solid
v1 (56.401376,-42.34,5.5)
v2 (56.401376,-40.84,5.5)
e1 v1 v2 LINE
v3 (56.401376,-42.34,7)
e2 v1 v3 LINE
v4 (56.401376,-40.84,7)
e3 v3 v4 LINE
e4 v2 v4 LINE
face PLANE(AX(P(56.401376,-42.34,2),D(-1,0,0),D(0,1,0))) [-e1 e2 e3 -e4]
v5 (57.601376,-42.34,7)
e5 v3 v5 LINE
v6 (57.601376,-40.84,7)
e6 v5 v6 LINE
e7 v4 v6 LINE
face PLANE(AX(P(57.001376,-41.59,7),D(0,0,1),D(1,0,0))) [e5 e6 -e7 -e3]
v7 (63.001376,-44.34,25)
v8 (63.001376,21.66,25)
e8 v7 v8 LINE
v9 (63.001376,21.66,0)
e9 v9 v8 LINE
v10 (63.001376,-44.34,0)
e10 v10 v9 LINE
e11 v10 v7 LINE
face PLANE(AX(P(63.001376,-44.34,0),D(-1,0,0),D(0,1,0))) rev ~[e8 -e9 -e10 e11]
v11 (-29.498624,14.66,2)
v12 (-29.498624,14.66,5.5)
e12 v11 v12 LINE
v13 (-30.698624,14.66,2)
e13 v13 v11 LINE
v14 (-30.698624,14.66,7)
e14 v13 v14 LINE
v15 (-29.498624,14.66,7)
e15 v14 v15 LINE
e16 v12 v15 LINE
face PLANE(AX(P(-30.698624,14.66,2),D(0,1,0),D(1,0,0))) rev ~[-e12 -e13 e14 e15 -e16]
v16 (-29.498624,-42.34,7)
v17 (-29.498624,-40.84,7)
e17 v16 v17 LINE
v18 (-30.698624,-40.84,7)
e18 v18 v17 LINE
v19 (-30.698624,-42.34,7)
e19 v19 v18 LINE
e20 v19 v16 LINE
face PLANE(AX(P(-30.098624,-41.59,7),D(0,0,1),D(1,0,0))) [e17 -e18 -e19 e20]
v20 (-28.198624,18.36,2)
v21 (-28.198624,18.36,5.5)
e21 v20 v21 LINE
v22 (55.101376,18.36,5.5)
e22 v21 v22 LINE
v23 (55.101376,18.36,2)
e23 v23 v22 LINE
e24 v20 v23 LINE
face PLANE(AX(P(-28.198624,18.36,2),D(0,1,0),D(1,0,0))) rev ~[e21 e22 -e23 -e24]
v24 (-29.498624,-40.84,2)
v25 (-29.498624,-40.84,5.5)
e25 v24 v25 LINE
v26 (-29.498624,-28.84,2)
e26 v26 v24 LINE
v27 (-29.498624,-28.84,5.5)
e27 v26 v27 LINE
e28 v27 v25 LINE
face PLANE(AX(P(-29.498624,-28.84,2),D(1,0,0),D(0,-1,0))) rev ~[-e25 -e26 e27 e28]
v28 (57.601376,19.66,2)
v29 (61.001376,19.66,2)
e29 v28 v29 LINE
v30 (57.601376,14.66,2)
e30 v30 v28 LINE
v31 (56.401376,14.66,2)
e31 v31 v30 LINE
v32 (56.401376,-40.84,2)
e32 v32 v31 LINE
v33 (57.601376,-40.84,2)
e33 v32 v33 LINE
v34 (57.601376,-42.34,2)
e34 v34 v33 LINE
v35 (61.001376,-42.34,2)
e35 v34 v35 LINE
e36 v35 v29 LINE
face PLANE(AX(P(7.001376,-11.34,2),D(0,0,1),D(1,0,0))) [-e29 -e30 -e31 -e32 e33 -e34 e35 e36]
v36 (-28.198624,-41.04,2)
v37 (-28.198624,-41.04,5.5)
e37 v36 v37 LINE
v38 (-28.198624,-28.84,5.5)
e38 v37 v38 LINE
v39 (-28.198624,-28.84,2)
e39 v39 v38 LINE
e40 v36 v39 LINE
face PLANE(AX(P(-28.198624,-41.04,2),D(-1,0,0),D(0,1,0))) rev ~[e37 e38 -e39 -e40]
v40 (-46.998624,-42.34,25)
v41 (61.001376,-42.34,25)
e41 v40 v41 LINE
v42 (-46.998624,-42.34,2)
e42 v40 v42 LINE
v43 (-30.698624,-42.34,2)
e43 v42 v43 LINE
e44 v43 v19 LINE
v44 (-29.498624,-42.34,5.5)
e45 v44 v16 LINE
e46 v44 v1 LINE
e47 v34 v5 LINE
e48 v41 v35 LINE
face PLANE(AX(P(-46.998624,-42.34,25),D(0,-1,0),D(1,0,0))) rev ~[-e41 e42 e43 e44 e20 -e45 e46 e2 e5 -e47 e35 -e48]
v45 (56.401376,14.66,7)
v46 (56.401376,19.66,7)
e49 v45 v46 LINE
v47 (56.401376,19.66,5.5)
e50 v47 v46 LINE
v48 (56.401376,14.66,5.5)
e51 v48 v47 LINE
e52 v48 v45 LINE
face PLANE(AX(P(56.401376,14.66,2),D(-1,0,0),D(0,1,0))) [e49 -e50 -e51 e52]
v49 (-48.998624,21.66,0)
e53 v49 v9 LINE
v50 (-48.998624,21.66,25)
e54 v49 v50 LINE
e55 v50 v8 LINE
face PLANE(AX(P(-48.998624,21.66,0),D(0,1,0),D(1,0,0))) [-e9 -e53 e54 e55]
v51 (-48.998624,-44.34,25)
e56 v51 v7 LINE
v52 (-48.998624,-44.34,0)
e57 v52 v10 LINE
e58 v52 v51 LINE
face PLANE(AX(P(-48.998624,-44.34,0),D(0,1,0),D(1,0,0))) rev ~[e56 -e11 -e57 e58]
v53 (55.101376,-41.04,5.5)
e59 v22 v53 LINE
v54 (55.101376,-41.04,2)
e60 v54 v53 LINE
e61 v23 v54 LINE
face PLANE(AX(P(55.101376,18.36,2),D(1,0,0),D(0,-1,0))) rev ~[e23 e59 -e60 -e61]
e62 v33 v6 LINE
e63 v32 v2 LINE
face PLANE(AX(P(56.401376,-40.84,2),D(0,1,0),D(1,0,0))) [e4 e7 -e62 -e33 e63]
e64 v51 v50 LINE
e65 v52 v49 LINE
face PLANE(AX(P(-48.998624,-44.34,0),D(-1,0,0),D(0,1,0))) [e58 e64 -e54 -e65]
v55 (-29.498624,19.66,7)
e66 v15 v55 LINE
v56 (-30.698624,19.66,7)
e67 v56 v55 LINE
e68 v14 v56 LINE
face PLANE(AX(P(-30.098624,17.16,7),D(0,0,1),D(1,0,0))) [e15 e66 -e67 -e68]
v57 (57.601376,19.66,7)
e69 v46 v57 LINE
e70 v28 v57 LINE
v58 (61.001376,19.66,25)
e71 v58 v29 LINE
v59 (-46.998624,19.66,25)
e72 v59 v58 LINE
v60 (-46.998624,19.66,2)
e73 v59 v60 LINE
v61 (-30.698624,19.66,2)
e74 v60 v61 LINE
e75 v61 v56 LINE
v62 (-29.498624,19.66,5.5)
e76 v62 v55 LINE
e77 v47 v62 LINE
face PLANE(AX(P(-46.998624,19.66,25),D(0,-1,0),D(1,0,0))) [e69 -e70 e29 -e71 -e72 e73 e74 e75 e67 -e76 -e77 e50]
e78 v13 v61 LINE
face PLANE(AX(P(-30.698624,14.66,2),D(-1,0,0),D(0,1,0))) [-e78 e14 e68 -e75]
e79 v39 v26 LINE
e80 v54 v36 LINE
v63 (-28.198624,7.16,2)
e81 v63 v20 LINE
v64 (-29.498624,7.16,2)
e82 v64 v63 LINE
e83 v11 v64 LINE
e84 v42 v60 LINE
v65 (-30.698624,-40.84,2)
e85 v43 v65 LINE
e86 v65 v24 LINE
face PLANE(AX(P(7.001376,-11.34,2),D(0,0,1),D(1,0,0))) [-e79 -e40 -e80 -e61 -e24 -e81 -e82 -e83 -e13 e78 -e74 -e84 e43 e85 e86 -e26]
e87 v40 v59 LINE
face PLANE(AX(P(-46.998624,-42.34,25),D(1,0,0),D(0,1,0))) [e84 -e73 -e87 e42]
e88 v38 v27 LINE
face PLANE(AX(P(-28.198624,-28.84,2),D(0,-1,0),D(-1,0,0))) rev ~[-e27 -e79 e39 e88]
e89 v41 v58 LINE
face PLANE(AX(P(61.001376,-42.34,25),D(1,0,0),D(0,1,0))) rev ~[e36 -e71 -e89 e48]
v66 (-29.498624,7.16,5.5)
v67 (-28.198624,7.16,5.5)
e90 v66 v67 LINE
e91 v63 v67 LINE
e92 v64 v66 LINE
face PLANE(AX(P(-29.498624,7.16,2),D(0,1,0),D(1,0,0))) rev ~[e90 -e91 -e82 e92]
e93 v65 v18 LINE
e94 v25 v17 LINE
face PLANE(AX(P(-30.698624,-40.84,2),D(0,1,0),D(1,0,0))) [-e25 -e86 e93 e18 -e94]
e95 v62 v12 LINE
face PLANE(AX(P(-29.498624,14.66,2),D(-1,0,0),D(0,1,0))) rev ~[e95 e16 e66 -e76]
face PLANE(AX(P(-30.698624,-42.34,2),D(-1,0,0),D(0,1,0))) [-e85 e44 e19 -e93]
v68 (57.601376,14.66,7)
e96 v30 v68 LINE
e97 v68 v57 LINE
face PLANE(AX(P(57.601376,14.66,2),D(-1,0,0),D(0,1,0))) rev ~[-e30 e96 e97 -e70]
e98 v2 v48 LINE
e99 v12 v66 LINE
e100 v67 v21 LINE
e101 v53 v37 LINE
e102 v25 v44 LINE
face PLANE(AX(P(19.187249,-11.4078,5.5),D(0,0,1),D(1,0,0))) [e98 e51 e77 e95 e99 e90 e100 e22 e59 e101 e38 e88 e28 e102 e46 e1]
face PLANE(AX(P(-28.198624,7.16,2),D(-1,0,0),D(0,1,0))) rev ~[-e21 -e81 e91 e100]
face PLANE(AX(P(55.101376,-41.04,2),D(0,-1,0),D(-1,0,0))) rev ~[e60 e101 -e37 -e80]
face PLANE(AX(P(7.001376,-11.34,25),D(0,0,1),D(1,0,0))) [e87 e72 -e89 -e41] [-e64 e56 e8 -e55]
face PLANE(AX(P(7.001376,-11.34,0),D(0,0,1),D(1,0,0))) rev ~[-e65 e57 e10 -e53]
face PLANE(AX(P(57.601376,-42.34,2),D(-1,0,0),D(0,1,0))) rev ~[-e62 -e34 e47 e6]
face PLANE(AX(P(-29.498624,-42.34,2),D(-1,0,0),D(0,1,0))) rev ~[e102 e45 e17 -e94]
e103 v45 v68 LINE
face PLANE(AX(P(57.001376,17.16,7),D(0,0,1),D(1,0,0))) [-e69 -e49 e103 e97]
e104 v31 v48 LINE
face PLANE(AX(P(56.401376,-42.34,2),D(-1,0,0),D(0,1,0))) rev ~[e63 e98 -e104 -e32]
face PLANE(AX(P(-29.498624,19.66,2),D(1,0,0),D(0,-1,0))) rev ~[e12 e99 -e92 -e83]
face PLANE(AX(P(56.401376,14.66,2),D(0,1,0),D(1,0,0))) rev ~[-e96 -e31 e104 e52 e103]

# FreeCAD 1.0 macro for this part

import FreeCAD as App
import Part
import Sketcher

V = App.Vector
Q = App.Units.Quantity

doc = App.newDocument("Part")
body = doc.addObject("PartDesign::Body", "Body")

# Sketch on XY plane
sketch1 = body.newObject("Sketcher::SketchObject", "Sketch")
sketch1.AttachmentSupport = (doc.getObject("XY_Plane"), [""])
sketch1.MapMode = "FlatFace"
sketch1.addGeometry(Part.LineSegment(V(-48.998624, 21.66, 0), V(-48.998624, -44.34, 0)), False)
sketch1.addGeometry(Part.LineSegment(V(-48.998624, -44.34, 0), V(63.001376, -44.34, 0)), False)
sketch1.addGeometry(Part.LineSegment(V(63.001376, -44.34, 0), V(63.001376, 21.66, 0)), False)
sketch1.addGeometry(Part.LineSegment(V(63.001376, 21.66, 0), V(-48.998624, 21.66, 0)), False)
sketch1.addConstraint(Sketcher.Constraint("Coincident", 0, 2, 1, 1))
sketch1.addConstraint(Sketcher.Constraint("Coincident", 1, 2, 2, 1))
sketch1.addConstraint(Sketcher.Constraint("Coincident", 2, 2, 3, 1))
sketch1.addConstraint(Sketcher.Constraint("Coincident", 3, 2, 0, 1))
sketch1.addConstraint(Sketcher.Constraint("Vertical", 0))
sketch1.addConstraint(Sketcher.Constraint("Horizontal", 1))
sketch1.addConstraint(Sketcher.Constraint("Vertical", 2))
sketch1.addConstraint(Sketcher.Constraint("Horizontal", 3))
sketch1.addConstraint(Sketcher.Constraint("DistanceX", 1, 1, 1, 2, Q("112 mm")))
sketch1.addConstraint(Sketcher.Constraint("DistanceY", 0, 2, 0, 1, Q("66 mm")))
sketch1.addConstraint(Sketcher.Constraint("DistanceY", 0, 2, -1, 1, Q("44.34 mm")))
sketch1.addConstraint(Sketcher.Constraint("DistanceX", 0, 2, -1, 1, Q("48.998624 mm")))
pad1 = body.newObject("PartDesign::Pad", "Pad")
pad1.Profile = sketch1
pad1.Length = 25

# Sketch on XY plane
sketch2 = body.newObject("Sketcher::SketchObject", "Sketch001")
sketch2.AttachmentSupport = (doc.getObject("XY_Plane"), [""])
sketch2.MapMode = "FlatFace"
sketch2.AttachmentOffset = App.Placement(V(0, 0, 25), App.Rotation())
sketch2.addGeometry(Part.LineSegment(V(-46.998624, 19.66, 0), V(-46.998624, -42.34, 0)), False)
sketch2.addGeometry(Part.LineSegment(V(-46.998624, -42.34, 0), V(61.001376, -42.34, 0)), False)
sketch2.addGeometry(Part.LineSegment(V(61.001376, -42.34, 0), V(61.001376, 19.66, 0)), False)
sketch2.addGeometry(Part.LineSegment(V(61.001376, 19.66, 0), V(-46.998624, 19.66, 0)), False)
sketch2.addConstraint(Sketcher.Constraint("Coincident", 0, 2, 1, 1))
sketch2.addConstraint(Sketcher.Constraint("Coincident", 1, 2, 2, 1))
sketch2.addConstraint(Sketcher.Constraint("Coincident", 2, 2, 3, 1))
sketch2.addConstraint(Sketcher.Constraint("Coincident", 3, 2, 0, 1))
sketch2.addConstraint(Sketcher.Constraint("Vertical", 0))
sketch2.addConstraint(Sketcher.Constraint("Horizontal", 1))
sketch2.addConstraint(Sketcher.Constraint("Vertical", 2))
sketch2.addConstraint(Sketcher.Constraint("Horizontal", 3))
sketch2.addConstraint(Sketcher.Constraint("DistanceX", 1, 1, 1, 2, Q("108 mm")))
sketch2.addConstraint(Sketcher.Constraint("DistanceY", 0, 2, 0, 1, Q("62 mm")))
sketch2.addConstraint(Sketcher.Constraint("DistanceY", 0, 2, -1, 1, Q("42.34 mm")))
sketch2.addConstraint(Sketcher.Constraint("DistanceX", 0, 2, -1, 1, Q("46.998624 mm")))
pocket1 = body.newObject("PartDesign::Pocket", "Pocket")
pocket1.Profile = sketch2
pocket1.Length = 23

# Sketch on XY plane
sketch3 = body.newObject("Sketcher::SketchObject", "Sketch002")
sketch3.AttachmentSupport = (doc.getObject("XY_Plane"), [""])
sketch3.MapMode = "FlatFace"
sketch3.AttachmentOffset = App.Placement(V(0, 0, 2), App.Rotation())
sketch3.addGeometry(Part.LineSegment(V(-28.198624, 7.16, 0), V(-28.198624, 18.36, 0)), False)
sketch3.addGeometry(Part.LineSegment(V(-28.198624, 18.36, 0), V(55.101376, 18.36, 0)), False)
sketch3.addGeometry(Part.LineSegment(V(55.101376, 18.36, 0), V(55.101376, -41.04, 0)), False)
sketch3.addGeometry(Part.LineSegment(V(55.101376, -41.04, 0), V(-28.198624, -41.04, 0)), False)
sketch3.addGeometry(Part.LineSegment(V(-28.198624, -41.04, 0), V(-28.198624, -28.84, 0)), False)
sketch3.addGeometry(Part.LineSegment(V(-28.198624, -28.84, 0), V(-29.498624, -28.84, 0)), False)
sketch3.addGeometry(Part.LineSegment(V(-29.498624, -28.84, 0), V(-29.498624, -42.34, 0)), False)
sketch3.addGeometry(Part.LineSegment(V(-29.498624, -42.34, 0), V(56.401376, -42.34, 0)), False)
sketch3.addGeometry(Part.LineSegment(V(56.401376, -42.34, 0), V(56.401376, 19.66, 0)), False)
sketch3.addGeometry(Part.LineSegment(V(56.401376, 19.66, 0), V(-29.498624, 19.66, 0)), False)
sketch3.addGeometry(Part.LineSegment(V(-29.498624, 19.66, 0), V(-29.498624, 7.16, 0)), False)
sketch3.addGeometry(Part.LineSegment(V(-29.498624, 7.16, 0), V(-28.198624, 7.16, 0)), False)
sketch3.addConstraint(Sketcher.Constraint("Coincident", 0, 2, 1, 1))
sketch3.addConstraint(Sketcher.Constraint("Coincident", 1, 2, 2, 1))
sketch3.addConstraint(Sketcher.Constraint("Coincident", 2, 2, 3, 1))
sketch3.addConstraint(Sketcher.Constraint("Coincident", 3, 2, 4, 1))
sketch3.addConstraint(Sketcher.Constraint("Coincident", 4, 2, 5, 1))
sketch3.addConstraint(Sketcher.Constraint("Coincident", 5, 2, 6, 1))
sketch3.addConstraint(Sketcher.Constraint("Coincident", 6, 2, 7, 1))
sketch3.addConstraint(Sketcher.Constraint("Coincident", 7, 2, 8, 1))
sketch3.addConstraint(Sketcher.Constraint("Coincident", 8, 2, 9, 1))
sketch3.addConstraint(Sketcher.Constraint("Coincident", 9, 2, 10, 1))
sketch3.addConstraint(Sketcher.Constraint("Coincident", 10, 2, 11, 1))
sketch3.addConstraint(Sketcher.Constraint("Coincident", 11, 2, 0, 1))
sketch3.addConstraint(Sketcher.Constraint("Vertical", 0))
sketch3.addConstraint(Sketcher.Constraint("Horizontal", 1))
sketch3.addConstraint(Sketcher.Constraint("Vertical", 2))
sketch3.addConstraint(Sketcher.Constraint("Horizontal", 3))
sketch3.addConstraint(Sketcher.Constraint("Vertical", 4))
sketch3.addConstraint(Sketcher.Constraint("Horizontal", 5))
sketch3.addConstraint(Sketcher.Constraint("Vertical", 6))
sketch3.addConstraint(Sketcher.Constraint("Horizontal", 7))
sketch3.addConstraint(Sketcher.Constraint("Vertical", 8))
sketch3.addConstraint(Sketcher.Constraint("Horizontal", 9))
sketch3.addConstraint(Sketcher.Constraint("Vertical", 10))
sketch3.addConstraint(Sketcher.Constraint("Horizontal", 11))
sketch3.addConstraint(Sketcher.Constraint("Vertical", 0, 2, 3, 2))
sketch3.addConstraint(Sketcher.Constraint("Vertical", 6, 2, 9, 2))
sketch3.addConstraint(Sketcher.Constraint("DistanceY", 8, 1, 8, 2, Q("62 mm")))
sketch3.addConstraint(Sketcher.Constraint("DistanceX", 1, 1, 1, 2, Q("83.3 mm")))
sketch3.addConstraint(Sketcher.Constraint("DistanceX", 5, 2, 5, 1, Q("1.3 mm")))
sketch3.addConstraint(Sketcher.Constraint("DistanceX", 7, 1, 7, 2, Q("85.9 mm")))
sketch3.addConstraint(Sketcher.Constraint("DistanceY", 0, 1, 0, 2, Q("11.2 mm")))
sketch3.addConstraint(Sketcher.Constraint("DistanceY", 2, 2, 2, 1, Q("59.4 mm")))
sketch3.addConstraint(Sketcher.Constraint("DistanceY", 4, 1, 4, 2, Q("12.2 mm")))
sketch3.addConstraint(Sketcher.Constraint("DistanceY", 6, 2, 6, 1, Q("13.5 mm")))
sketch3.addConstraint(Sketcher.Constraint("DistanceY", -1, 1, 0, 2, Q("18.36 mm")))
sketch3.addConstraint(Sketcher.Constraint("DistanceX", 0, 2, -1, 1, Q("28.198624 mm")))
pad2 = body.newObject("PartDesign::Pad", "Pad001")
pad2.Profile = sketch3
pad2.Length = 3.5

# Sketch on XY plane
sketch4 = body.newObject("Sketcher::SketchObject", "Sketch003")
sketch4.AttachmentSupport = (doc.getObject("XY_Plane"), [""])
sketch4.MapMode = "FlatFace"
sketch4.AttachmentOffset = App.Placement(V(0, 0, 2), App.Rotation())
sketch4.addGeometry(Part.LineSegment(V(56.401376, 19.66, 0), V(56.401376, 14.66, 0)), False)
sketch4.addGeometry(Part.LineSegment(V(56.401376, 14.66, 0), V(57.601376, 14.66, 0)), False)
sketch4.addGeometry(Part.LineSegment(V(57.601376, 14.66, 0), V(57.601376, 19.66, 0)), False)
sketch4.addGeometry(Part.LineSegment(V(57.601376, 19.66, 0), V(56.401376, 19.66, 0)), False)
sketch4.addGeometry(Part.LineSegment(V(-30.698624, -40.84, 0), V(-30.698624, -42.34, 0)), False)
sketch4.addGeometry(Part.LineSegment(V(-30.698624, -42.34, 0), V(-29.498624, -42.34, 0)), False)
sketch4.addGeometry(Part.LineSegment(V(-29.498624, -42.34, 0), V(-29.498624, -40.84, 0)), False)
sketch4.addGeometry(Part.LineSegment(V(-29.498624, -40.84, 0), V(-30.698624, -40.84, 0)), False)
sketch4.addGeometry(Part.LineSegment(V(56.401376, -40.84, 0), V(56.401376, -42.34, 0)), False)
sketch4.addGeometry(Part.LineSegment(V(56.401376, -42.34, 0), V(57.601376, -42.34, 0)), False)
sketch4.addGeometry(Part.LineSegment(V(57.601376, -42.34, 0), V(57.601376, -40.84, 0)), False)
sketch4.addGeometry(Part.LineSegment(V(57.601376, -40.84, 0), V(56.401376, -40.84, 0)), False)
sketch4.addGeometry(Part.LineSegment(V(-30.698624, 19.66, 0), V(-30.698624, 14.66, 0)), False)
sketch4.addGeometry(Part.LineSegment(V(-30.698624, 14.66, 0), V(-29.498624, 14.66, 0)), False)
sketch4.addGeometry(Part.LineSegment(V(-29.498624, 14.66, 0), V(-29.498624, 19.66, 0)), False)
sketch4.addGeometry(Part.LineSegment(V(-29.498624, 19.66, 0), V(-30.698624, 19.66, 0)), False)
sketch4.addConstraint(Sketcher.Constraint("Coincident", 0, 2, 1, 1))
sketch4.addConstraint(Sketcher.Constraint("Coincident", 1, 2, 2, 1))
sketch4.addConstraint(Sketcher.Constraint("Coincident", 2, 2, 3, 1))
sketch4.addConstraint(Sketcher.Constraint("Coincident", 3, 2, 0, 1))
sketch4.addConstraint(Sketcher.Constraint("Coincident", 4, 2, 5, 1))
sketch4.addConstraint(Sketcher.Constraint("Coincident", 5, 2, 6, 1))
sketch4.addConstraint(Sketcher.Constraint("Coincident", 6, 2, 7, 1))
sketch4.addConstraint(Sketcher.Constraint("Coincident", 7, 2, 4, 1))
sketch4.addConstraint(Sketcher.Constraint("Coincident", 8, 2, 9, 1))
sketch4.addConstraint(Sketcher.Constraint("Coincident", 9, 2, 10, 1))
sketch4.addConstraint(Sketcher.Constraint("Coincident", 10, 2, 11, 1))
sketch4.addConstraint(Sketcher.Constraint("Coincident", 11, 2, 8, 1))
sketch4.addConstraint(Sketcher.Constraint("Coincident", 12, 2, 13, 1))
sketch4.addConstraint(Sketcher.Constraint("Coincident", 13, 2, 14, 1))
sketch4.addConstraint(Sketcher.Constraint("Coincident", 14, 2, 15, 1))
sketch4.addConstraint(Sketcher.Constraint("Coincident", 15, 2, 12, 1))
sketch4.addConstraint(Sketcher.Constraint("Vertical", 0))
sketch4.addConstraint(Sketcher.Constraint("Horizontal", 1))
sketch4.addConstraint(Sketcher.Constraint("Vertical", 2))
sketch4.addConstraint(Sketcher.Constraint("Horizontal", 3))
sketch4.addConstraint(Sketcher.Constraint("Vertical", 4))
sketch4.addConstraint(Sketcher.Constraint("Horizontal", 5))
sketch4.addConstraint(Sketcher.Constraint("Vertical", 6))
sketch4.addConstraint(Sketcher.Constraint("Horizontal", 7))
sketch4.addConstraint(Sketcher.Constraint("Vertical", 8))
sketch4.addConstraint(Sketcher.Constraint("Horizontal", 9))
sketch4.addConstraint(Sketcher.Constraint("Vertical", 10))
sketch4.addConstraint(Sketcher.Constraint("Horizontal", 11))
sketch4.addConstraint(Sketcher.Constraint("Vertical", 12))
sketch4.addConstraint(Sketcher.Constraint("Horizontal", 13))
sketch4.addConstraint(Sketcher.Constraint("Vertical", 14))
sketch4.addConstraint(Sketcher.Constraint("Horizontal", 15))
sketch4.addConstraint(Sketcher.Constraint("Horizontal", 5, 2, 8, 2))
sketch4.addConstraint(Sketcher.Constraint("Horizontal", 7, 2, 10, 2))
sketch4.addConstraint(Sketcher.Constraint("Horizontal", 1, 2, 12, 2))
sketch4.addConstraint(Sketcher.Constraint("Horizontal", 3, 2, 14, 2))
sketch4.addConstraint(Sketcher.Constraint("Vertical", 3, 2, 8, 2))
sketch4.addConstraint(Sketcher.Constraint("Vertical", 2, 2, 9, 2))
sketch4.addConstraint(Sketcher.Constraint("Vertical", 7, 2, 12, 2))
sketch4.addConstraint(Sketcher.Constraint("Vertical", 6, 2, 13, 2))
sketch4.addConstraint(Sketcher.Constraint("Equal", 3, 5))
sketch4.addConstraint(Sketcher.Constraint("DistanceY", 0, 2, 0, 1, Q("5 mm")))
sketch4.addConstraint(Sketcher.Constraint("DistanceX", 1, 1, 1, 2, Q("1.2 mm")))
sketch4.addConstraint(Sketcher.Constraint("DistanceY", 4, 2, 4, 1, Q("1.5 mm")))
sketch4.addConstraint(Sketcher.Constraint("DistanceY", 4, 2, 0, 2, Q("57 mm")))
sketch4.addConstraint(Sketcher.Constraint("DistanceX", 4, 2, 0, 2, Q("87.1 mm")))
sketch4.addConstraint(Sketcher.Constraint("DistanceY", -1, 1, 0, 2, Q("14.66 mm")))
sketch4.addConstraint(Sketcher.Constraint("DistanceX", -1, 1, 0, 2, Q("56.401376 mm")))
pad3 = body.newObject("PartDesign::Pad", "Pad002")
pad3.Profile = sketch4
pad3.Length = 5

doc.recompute()
